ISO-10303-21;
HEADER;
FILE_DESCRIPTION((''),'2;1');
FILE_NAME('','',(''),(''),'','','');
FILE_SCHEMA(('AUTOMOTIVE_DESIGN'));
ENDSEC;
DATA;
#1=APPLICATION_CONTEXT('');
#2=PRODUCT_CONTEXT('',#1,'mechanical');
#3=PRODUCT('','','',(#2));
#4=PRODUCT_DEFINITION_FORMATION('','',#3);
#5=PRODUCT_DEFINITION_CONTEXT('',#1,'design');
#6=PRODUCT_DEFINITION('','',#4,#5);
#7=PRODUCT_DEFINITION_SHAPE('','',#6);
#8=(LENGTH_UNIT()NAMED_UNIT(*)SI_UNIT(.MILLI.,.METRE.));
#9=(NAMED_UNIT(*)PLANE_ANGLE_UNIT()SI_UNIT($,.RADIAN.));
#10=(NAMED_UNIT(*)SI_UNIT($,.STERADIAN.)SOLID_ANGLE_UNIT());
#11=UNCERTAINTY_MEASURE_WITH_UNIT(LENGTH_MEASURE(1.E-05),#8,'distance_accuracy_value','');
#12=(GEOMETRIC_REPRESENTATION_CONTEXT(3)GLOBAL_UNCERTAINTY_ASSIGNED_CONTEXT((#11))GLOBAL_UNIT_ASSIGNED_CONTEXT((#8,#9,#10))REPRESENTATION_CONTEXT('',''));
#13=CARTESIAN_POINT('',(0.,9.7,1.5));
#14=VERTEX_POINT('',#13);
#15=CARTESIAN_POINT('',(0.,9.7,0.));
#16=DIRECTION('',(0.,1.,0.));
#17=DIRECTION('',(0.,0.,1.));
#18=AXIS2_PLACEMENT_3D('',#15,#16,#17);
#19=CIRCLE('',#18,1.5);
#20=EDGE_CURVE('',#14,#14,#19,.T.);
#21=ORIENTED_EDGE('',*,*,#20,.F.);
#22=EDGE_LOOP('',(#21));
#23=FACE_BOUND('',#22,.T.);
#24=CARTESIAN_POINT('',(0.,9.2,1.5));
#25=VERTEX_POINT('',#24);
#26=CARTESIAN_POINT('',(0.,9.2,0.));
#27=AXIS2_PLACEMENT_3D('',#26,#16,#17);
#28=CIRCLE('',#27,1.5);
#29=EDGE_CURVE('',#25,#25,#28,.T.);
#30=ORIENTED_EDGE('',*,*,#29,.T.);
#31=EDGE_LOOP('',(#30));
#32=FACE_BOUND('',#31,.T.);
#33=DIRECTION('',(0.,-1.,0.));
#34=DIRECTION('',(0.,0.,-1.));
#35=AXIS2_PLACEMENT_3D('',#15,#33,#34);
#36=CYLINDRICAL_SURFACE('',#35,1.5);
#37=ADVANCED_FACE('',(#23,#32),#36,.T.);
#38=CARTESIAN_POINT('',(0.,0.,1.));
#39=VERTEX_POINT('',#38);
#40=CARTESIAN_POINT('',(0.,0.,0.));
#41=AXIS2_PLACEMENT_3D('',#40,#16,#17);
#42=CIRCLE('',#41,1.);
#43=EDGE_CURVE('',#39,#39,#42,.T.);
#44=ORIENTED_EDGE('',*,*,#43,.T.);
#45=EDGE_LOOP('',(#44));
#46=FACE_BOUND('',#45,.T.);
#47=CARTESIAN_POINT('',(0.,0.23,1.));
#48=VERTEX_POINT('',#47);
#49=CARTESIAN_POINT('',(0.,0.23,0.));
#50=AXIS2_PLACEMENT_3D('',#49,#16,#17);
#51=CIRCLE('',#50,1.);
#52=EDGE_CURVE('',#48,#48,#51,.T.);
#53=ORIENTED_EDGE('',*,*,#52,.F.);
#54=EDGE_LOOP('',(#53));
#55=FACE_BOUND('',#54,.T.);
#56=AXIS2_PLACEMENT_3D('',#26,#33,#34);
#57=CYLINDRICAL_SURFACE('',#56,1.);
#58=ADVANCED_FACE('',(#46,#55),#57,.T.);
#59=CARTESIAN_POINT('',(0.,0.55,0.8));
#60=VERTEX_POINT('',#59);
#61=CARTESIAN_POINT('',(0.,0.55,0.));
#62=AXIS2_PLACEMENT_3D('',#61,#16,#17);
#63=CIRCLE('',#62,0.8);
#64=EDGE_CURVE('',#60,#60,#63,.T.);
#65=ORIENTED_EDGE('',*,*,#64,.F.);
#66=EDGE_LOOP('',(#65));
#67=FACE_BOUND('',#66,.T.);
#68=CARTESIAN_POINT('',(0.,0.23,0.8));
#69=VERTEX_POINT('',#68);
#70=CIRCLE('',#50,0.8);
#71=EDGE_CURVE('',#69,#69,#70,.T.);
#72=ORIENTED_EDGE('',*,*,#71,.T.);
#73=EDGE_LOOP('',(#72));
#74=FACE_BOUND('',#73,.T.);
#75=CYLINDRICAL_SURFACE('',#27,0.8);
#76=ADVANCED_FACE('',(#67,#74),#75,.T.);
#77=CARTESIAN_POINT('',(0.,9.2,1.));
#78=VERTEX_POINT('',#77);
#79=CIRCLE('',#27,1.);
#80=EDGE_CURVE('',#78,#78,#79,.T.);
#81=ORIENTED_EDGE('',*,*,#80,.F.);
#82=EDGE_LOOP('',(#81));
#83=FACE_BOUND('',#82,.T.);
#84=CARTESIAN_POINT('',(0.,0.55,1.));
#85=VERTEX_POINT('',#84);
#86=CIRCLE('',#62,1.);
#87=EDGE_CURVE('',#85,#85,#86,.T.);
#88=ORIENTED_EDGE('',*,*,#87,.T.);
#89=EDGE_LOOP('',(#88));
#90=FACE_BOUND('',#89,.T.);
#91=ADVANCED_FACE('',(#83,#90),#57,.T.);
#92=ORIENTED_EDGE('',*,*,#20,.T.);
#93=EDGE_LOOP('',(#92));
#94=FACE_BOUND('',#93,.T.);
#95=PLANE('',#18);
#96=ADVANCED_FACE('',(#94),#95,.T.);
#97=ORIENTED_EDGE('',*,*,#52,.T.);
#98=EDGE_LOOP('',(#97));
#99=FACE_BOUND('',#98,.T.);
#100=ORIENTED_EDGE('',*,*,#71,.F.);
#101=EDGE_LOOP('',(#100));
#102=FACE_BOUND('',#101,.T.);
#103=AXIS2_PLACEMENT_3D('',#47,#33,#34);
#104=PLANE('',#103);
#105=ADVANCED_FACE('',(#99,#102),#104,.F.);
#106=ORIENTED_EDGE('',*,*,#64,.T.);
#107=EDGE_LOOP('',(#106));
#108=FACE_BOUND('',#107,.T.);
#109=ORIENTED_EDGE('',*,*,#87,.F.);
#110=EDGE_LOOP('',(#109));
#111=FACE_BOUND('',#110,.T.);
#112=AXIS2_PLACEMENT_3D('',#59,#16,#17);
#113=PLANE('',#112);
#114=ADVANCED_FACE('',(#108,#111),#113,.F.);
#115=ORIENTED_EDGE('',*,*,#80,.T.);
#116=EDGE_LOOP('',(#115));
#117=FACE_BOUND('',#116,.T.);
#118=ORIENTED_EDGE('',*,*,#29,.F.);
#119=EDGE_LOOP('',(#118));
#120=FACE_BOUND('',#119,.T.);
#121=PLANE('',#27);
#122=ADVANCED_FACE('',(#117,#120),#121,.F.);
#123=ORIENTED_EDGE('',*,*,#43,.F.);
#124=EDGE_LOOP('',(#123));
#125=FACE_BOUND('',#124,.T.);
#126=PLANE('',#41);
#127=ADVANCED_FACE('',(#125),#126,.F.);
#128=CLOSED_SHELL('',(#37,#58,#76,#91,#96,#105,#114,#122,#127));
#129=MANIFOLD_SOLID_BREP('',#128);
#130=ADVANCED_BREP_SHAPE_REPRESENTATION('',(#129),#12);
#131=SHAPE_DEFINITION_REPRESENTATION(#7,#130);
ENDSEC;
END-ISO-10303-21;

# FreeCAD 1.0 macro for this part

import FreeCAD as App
import Part
import Sketcher
from FreeCAD import Vector

doc = App.newDocument("Part")
body = doc.addObject("PartDesign::Body", "Body")

sketch1 = doc.addObject("Sketcher::SketchObject", "Sketch")
body.addObject(sketch1)
sketch1.AttachmentSupport = (doc.XZ_Plane, [""])
sketch1.MapMode = "FlatFace"
sketch1.addGeometry(Part.Circle(Vector(0, 0, 0), Vector(0, 0, 1), 1), False)
sketch1.addConstraint([
    Sketcher.Constraint("Coincident", 0, 3, -1, 1),
    Sketcher.Constraint("Diameter", 0, 2.0),
])
pad1 = doc.addObject("PartDesign::Pad", "Pad")
body.addObject(pad1)
pad1.Profile = sketch1
pad1.Length = 9.2
pad1.Reversed = True

sketch2 = doc.addObject("Sketcher::SketchObject", "Sketch001")
body.addObject(sketch2)
sketch2.AttachmentSupport = (doc.XZ_Plane, [""])
sketch2.MapMode = "FlatFace"
sketch2.AttachmentOffset = App.Placement(Vector(0, 0, -9.2), App.Rotation())
sketch2.addGeometry(Part.Circle(Vector(0, 0, 0), Vector(0, 0, 1), 1.5), False)
sketch2.addConstraint([
    Sketcher.Constraint("Coincident", 0, 3, -1, 1),
    Sketcher.Constraint("Diameter", 0, 3.0),
])
pad2 = doc.addObject("PartDesign::Pad", "Pad001")
body.addObject(pad2)
pad2.Profile = sketch2
pad2.Length = 0.5
pad2.Reversed = True

sketch3 = doc.addObject("Sketcher::SketchObject", "Sketch002")
body.addObject(sketch3)
sketch3.AttachmentSupport = (doc.YZ_Plane, [""])
sketch3.MapMode = "FlatFace"
sketch3.addGeometry([
    Part.LineSegment(Vector(0.55, 1, 0), Vector(0.23, 1, 0)),
    Part.LineSegment(Vector(0.23, 1, 0), Vector(0.23, 0.8, 0)),
    Part.LineSegment(Vector(0.23, 0.8, 0), Vector(0.55, 0.8, 0)),
    Part.LineSegment(Vector(0.55, 0.8, 0), Vector(0.55, 1, 0)),
], False)
sketch3.addConstraint([
    Sketcher.Constraint("Coincident", 0, 2, 1, 1),
    Sketcher.Constraint("Coincident", 1, 2, 2, 1),
    Sketcher.Constraint("Coincident", 2, 2, 3, 1),
    Sketcher.Constraint("Coincident", 3, 2, 0, 1),
    Sketcher.Constraint("Horizontal", 0),
    Sketcher.Constraint("Vertical", 1),
    Sketcher.Constraint("Horizontal", 2),
    Sketcher.Constraint("Vertical", 3),
    Sketcher.Constraint("DistanceY", 1, 2, 1, 1, 0.2),
    Sketcher.Constraint("DistanceY", -1, 1, 0, 2, 1.0),
    Sketcher.Constraint("DistanceX", 0, 2, 0, 1, 0.32),
    Sketcher.Constraint("DistanceX", -1, 1, 0, 2, 0.23),
])
groove = doc.addObject("PartDesign::Groove", "Groove")
body.addObject(groove)
groove.Profile = sketch3
groove.ReferenceAxis = (sketch3, ["H_Axis"])
groove.Angle = 360

doc.recompute()
